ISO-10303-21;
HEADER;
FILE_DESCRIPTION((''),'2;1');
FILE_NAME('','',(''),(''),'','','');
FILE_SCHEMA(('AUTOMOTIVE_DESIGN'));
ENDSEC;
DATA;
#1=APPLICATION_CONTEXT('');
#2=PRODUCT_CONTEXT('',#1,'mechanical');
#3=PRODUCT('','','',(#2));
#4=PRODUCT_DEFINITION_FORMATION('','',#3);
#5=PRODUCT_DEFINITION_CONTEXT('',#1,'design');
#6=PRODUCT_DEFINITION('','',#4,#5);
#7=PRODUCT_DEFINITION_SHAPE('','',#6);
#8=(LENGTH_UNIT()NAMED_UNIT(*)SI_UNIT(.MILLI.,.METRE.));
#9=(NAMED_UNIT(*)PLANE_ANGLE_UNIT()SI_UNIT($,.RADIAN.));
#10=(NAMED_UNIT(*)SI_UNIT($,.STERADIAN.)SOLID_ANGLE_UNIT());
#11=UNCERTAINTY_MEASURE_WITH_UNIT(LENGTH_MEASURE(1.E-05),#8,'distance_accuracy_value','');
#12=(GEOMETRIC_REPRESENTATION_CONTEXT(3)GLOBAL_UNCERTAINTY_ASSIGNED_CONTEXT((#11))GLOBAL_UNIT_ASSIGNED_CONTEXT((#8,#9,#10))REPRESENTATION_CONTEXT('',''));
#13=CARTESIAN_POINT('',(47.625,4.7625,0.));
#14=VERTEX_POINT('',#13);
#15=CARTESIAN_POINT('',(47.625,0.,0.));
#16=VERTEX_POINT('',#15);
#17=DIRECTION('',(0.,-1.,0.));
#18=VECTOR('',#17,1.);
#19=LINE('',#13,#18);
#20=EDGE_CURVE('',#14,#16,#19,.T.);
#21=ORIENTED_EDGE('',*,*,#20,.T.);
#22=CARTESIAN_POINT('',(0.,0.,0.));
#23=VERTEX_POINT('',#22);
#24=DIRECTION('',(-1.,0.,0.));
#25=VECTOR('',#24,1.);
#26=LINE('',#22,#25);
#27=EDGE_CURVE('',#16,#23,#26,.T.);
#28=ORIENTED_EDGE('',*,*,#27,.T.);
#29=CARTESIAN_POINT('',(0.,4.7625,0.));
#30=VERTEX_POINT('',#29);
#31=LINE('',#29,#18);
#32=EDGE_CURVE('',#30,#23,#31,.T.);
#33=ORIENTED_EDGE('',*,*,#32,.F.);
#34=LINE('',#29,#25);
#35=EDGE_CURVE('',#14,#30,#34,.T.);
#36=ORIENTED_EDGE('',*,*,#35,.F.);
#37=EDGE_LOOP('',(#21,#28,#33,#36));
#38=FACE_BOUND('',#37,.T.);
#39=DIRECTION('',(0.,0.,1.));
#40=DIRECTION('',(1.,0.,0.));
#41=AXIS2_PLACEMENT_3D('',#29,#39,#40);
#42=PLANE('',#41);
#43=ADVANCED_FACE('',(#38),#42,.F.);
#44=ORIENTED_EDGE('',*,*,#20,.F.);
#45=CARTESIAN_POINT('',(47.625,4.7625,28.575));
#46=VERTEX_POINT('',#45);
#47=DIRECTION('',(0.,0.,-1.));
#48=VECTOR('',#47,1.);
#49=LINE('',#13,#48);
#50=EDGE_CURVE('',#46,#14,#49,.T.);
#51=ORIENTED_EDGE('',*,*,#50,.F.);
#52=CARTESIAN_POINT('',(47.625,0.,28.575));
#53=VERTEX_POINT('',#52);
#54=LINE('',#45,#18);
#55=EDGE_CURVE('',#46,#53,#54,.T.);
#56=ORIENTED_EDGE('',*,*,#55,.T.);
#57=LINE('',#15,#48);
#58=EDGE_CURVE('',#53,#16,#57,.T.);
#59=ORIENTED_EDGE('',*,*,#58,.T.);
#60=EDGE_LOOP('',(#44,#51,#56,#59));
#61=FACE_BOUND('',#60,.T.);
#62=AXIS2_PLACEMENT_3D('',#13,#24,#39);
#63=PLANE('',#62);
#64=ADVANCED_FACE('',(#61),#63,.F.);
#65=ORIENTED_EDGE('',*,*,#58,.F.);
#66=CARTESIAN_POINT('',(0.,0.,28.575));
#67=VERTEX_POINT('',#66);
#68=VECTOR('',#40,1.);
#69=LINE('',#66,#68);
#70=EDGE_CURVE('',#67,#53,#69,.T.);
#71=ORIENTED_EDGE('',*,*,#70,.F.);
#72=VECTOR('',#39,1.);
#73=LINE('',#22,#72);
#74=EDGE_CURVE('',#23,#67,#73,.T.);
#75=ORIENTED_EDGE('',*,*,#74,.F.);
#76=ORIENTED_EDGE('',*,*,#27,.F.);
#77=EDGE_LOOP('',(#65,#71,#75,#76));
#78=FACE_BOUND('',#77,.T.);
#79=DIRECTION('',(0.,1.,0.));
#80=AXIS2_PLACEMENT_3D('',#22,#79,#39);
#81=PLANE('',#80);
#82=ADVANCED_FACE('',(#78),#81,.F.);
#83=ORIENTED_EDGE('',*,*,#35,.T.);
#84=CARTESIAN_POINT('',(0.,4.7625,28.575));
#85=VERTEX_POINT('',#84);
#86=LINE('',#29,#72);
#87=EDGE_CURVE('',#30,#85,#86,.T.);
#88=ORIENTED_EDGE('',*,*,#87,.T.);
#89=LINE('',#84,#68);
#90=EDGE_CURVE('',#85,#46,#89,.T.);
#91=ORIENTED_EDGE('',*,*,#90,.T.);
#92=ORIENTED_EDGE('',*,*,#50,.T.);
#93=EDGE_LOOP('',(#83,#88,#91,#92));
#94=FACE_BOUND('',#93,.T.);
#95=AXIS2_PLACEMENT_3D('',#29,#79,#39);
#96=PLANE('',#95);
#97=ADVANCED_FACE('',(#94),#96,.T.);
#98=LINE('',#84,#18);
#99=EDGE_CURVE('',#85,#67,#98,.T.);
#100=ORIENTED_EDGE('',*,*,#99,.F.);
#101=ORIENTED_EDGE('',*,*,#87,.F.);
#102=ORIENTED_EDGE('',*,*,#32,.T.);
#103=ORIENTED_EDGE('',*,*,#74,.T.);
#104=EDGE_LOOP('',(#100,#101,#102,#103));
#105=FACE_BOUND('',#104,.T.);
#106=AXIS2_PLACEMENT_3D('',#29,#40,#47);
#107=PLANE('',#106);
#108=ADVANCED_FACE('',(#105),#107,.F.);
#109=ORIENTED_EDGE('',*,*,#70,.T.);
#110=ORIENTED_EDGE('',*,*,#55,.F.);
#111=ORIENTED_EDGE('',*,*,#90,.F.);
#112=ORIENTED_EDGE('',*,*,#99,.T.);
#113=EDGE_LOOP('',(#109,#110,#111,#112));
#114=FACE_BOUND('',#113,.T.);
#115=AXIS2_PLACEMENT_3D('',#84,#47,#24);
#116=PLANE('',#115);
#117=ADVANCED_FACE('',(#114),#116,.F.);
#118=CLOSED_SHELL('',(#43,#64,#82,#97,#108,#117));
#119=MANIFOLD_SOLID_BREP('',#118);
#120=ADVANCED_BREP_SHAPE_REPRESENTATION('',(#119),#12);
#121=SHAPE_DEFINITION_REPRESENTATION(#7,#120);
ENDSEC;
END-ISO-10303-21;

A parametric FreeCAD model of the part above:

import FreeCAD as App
import Part
import Sketcher
Q = App.Units.Quantity


def add_polygon(sketch, points):
    """Adds a closed chain of lines whose ends are joined by coincident constraints."""
    first, n = sketch.GeometryCount, len(points)
    for a, b in zip(points, points[1:] + points[:1]):
        sketch.addGeometry(Part.LineSegment(App.Vector(*a, 0), App.Vector(*b, 0)), False)
    for i in range(n):
        sketch.addConstraint(Sketcher.Constraint("Coincident", first + i, 2, first + (i + 1) % n, 1))

doc = App.newDocument("Part")
params = doc.addObject("Spreadsheet::Sheet", "Params")
for row, (alias, value) in enumerate([
    ("sketch1_width", "1.875 in"),
    ("sketch1_height", "1.125 in"),
    ("pad1_length", "0.1875 in"),
], start=1):
    params.set(f"A{row}", alias)
    params.set(f"B{row}", "=" + value)
    params.setAlias(f"B{row}", alias)

body = doc.addObject("PartDesign::Body", "Body")

sketch1 = body.newObject("Sketcher::SketchObject", "Sketch")
sketch1.AttachmentSupport = (doc.getObject("XZ_Plane"), [""])
sketch1.MapMode = "FlatFace"
add_polygon(sketch1, [(0, 0), (0, 28.575), (47.625, 28.575), (47.625, 0)])
sketch1.addConstraint([
    Sketcher.Constraint("Vertical", 0),
    Sketcher.Constraint("Horizontal", 1),
    Sketcher.Constraint("Vertical", 2),
    Sketcher.Constraint("Horizontal", 3),
    Sketcher.Constraint("Coincident", 3, 2, -1, 1),
    Sketcher.Constraint("DistanceX", 1, 1, 1, 2, Q("1.875 in")),
    Sketcher.Constraint("DistanceY", 0, 1, 0, 2, Q("1.125 in")),
])
sketch1.setExpression("Constraints[9]", "Params.sketch1_width")
sketch1.setExpression("Constraints[10]", "Params.sketch1_height")
pad1 = body.newObject("PartDesign::Pad", "Pad")
pad1.Profile = sketch1
pad1.setExpression("Length", "Params.pad1_length")
pad1.Reversed = True

doc.recompute()
